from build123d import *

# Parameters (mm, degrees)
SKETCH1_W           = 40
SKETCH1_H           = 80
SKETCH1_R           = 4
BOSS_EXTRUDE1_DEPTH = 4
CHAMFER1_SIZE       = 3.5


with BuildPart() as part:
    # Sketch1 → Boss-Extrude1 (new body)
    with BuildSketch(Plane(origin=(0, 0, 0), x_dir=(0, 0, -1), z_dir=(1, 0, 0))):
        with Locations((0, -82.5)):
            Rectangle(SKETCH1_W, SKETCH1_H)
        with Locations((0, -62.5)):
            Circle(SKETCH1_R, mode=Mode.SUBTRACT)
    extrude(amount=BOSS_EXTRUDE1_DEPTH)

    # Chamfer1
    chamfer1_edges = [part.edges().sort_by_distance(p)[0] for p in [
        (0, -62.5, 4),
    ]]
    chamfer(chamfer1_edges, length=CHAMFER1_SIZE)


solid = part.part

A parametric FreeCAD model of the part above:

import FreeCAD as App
import Part
import Sketcher
Q = App.Units.Quantity


def edges_at(feature, points):
    """Names of the edges that pass closest to the given points."""
    edges = feature.Shape.Edges
    near = lambda p: min(range(len(edges)), key=lambda i: edges[i].distToShape(Part.Vertex(*p))[0])
    return sorted({f"Edge{near(p) + 1}" for p in points})

doc = App.newDocument("Part")
params = doc.addObject("Spreadsheet::Sheet", "Params")
for row, (alias, value) in enumerate([
    ("sketch1_diameter", "8 mm"),
    ("sketch1_width", "80 mm"),
    ("sketch1_height", "40 mm"),
    ("pad1_length", "4 mm"),
    ("chamfer_size", "3.5 mm"),
], start=1):
    params.set(f"A{row}", alias)
    params.set(f"B{row}", "=" + value)
    params.setAlias(f"B{row}", alias)

body = doc.addObject("PartDesign::Body", "Body")

# Sketch on YZ plane
sketch1 = doc.addObject("Sketcher::SketchObject", "Sketch")
body.addObject(sketch1)
sketch1.AttachmentSupport = (doc.YZ_Plane, [""])
sketch1.MapMode = "FlatFace"
sketch1.addGeometry([
    Part.LineSegment(App.Vector(-42.5, 20, 0), App.Vector(-122.5, 20, 0)),  # 0
    Part.LineSegment(App.Vector(-122.5, 20, 0), App.Vector(-122.5, -20, 0)),  # 1
    Part.LineSegment(App.Vector(-122.5, -20, 0), App.Vector(-42.5, -20, 0)),  # 2
    Part.LineSegment(App.Vector(-42.5, -20, 0), App.Vector(-42.5, 20, 0)),  # 3
    Part.Circle(App.Vector(-62.5, 0, 0), App.Vector(0, 0, 1), 4),  # 4
], False)
sketch1.addConstraint([
    Sketcher.Constraint("Coincident", 0, 2, 1, 1),
    Sketcher.Constraint("Coincident", 1, 2, 2, 1),
    Sketcher.Constraint("Coincident", 2, 2, 3, 1),
    Sketcher.Constraint("Coincident", 3, 2, 0, 1),
    Sketcher.Constraint("Horizontal", 0),
    Sketcher.Constraint("Vertical", 1),
    Sketcher.Constraint("Horizontal", 2),
    Sketcher.Constraint("Vertical", 3),
    Sketcher.Constraint("PointOnObject", 4, 3, -1),
    Sketcher.Constraint("Diameter", 4, Q("8 mm")),
    Sketcher.Constraint("DistanceX", 0, 2, 0, 1, Q("80 mm")),
    Sketcher.Constraint("DistanceY", 1, 2, 1, 1, Q("40 mm")),
    Sketcher.Constraint("DistanceY", -1, 1, 0, 2, Q("20 mm")),
    Sketcher.Constraint("DistanceX", 0, 2, 4, 3, Q("60 mm")),
    Sketcher.Constraint("DistanceX", 4, 3, -1, 1, Q("62.5 mm")),
])
sketch1.setExpression("Constraints[9]", "Params.sketch1_diameter")
sketch1.setExpression("Constraints[10]", "Params.sketch1_width")
sketch1.setExpression("Constraints[11]", "Params.sketch1_height")
pad1 = doc.addObject("PartDesign::Pad", "Pad")
body.addObject(pad1)
pad1.Profile = sketch1
pad1.setExpression("Length", "Params.pad1_length")
doc.recompute()

chamfer = doc.addObject("PartDesign::Chamfer", "Chamfer")
body.addObject(chamfer)
chamfer.Base = (pad1, edges_at(pad1, [(0, -62.5, 4)]))
chamfer.setExpression("Size", "Params.chamfer_size")

doc.recompute()
